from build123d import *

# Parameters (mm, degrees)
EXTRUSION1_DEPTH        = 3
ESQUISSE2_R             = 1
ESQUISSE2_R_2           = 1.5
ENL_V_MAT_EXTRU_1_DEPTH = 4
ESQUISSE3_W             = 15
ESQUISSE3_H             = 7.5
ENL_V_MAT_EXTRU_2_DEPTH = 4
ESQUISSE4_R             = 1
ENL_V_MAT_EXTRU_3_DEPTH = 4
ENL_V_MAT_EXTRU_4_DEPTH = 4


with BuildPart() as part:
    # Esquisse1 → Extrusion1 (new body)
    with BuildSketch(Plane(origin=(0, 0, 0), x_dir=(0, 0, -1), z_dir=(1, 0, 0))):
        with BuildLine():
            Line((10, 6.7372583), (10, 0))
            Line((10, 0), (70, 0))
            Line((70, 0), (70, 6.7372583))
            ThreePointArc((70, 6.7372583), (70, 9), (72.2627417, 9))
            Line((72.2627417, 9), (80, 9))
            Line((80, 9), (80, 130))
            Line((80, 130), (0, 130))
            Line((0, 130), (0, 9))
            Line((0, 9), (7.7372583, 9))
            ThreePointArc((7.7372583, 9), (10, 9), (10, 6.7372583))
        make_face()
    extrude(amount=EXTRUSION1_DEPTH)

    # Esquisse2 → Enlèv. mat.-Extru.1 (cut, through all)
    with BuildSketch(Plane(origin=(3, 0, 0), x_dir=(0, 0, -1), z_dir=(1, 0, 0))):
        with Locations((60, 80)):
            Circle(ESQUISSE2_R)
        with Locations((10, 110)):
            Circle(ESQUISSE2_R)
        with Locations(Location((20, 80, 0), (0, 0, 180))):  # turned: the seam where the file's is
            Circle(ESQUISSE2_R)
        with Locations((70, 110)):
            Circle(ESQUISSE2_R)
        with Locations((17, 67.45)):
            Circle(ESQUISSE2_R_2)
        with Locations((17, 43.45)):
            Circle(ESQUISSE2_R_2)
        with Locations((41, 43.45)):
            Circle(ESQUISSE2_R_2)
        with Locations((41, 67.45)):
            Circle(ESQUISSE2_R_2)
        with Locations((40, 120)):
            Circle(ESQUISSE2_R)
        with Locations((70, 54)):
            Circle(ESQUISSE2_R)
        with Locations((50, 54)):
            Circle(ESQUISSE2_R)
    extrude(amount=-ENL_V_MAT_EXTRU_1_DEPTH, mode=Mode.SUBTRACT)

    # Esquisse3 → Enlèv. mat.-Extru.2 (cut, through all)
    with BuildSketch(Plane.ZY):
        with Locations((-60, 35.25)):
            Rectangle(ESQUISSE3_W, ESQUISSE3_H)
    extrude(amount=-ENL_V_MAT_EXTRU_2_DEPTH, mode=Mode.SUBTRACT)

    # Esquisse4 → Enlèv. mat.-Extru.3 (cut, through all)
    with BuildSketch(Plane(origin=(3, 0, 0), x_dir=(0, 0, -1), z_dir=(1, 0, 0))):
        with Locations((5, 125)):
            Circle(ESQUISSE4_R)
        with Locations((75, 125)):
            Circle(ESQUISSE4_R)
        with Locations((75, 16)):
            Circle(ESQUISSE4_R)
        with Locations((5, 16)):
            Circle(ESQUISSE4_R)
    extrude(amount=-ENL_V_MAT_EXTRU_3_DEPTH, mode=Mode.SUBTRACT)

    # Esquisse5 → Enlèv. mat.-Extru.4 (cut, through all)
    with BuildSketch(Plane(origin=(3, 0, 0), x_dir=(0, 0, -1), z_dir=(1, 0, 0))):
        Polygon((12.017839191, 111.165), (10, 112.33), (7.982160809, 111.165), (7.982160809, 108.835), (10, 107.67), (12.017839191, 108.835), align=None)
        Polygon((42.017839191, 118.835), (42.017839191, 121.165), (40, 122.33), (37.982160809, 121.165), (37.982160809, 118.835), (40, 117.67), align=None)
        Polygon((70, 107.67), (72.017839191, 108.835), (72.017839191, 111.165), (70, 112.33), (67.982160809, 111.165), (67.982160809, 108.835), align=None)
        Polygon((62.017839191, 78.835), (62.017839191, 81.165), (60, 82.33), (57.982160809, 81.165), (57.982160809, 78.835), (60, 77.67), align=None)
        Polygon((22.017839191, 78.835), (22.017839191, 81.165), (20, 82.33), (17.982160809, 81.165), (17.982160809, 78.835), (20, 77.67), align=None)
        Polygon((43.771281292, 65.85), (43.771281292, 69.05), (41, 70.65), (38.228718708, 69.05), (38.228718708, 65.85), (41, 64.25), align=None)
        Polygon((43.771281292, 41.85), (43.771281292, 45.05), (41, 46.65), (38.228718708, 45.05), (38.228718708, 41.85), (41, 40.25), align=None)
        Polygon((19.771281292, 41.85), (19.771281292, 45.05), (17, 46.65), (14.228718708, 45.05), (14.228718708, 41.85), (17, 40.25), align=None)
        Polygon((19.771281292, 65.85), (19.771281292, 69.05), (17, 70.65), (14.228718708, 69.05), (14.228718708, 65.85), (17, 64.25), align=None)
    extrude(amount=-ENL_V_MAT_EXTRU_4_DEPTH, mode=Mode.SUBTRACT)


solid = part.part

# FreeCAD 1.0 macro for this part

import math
import FreeCAD as App
import Part
import Sketcher
Q = App.Units.Quantity


def add_polygon(sketch, points):
    """Adds a closed chain of lines whose ends are joined by coincident constraints."""
    first, n = sketch.GeometryCount, len(points)
    for a, b in zip(points, points[1:] + points[:1]):
        sketch.addGeometry(Part.LineSegment(App.Vector(*a, 0), App.Vector(*b, 0)), False)
    for i in range(n):
        sketch.addConstraint(Sketcher.Constraint("Coincident", first + i, 2, first + (i + 1) % n, 1))

doc = App.newDocument("Part")
body = doc.addObject("PartDesign::Body", "Body")

sketch1 = body.newObject("Sketcher::SketchObject", "Sketch")
sketch1.AttachmentSupport = (doc.getObject("YZ_Plane"), [""])
sketch1.MapMode = "FlatFace"
sketch1.addGeometry([
    Part.LineSegment(App.Vector(6.737258, -10, 0), App.Vector(0, -10, 0)),
    Part.LineSegment(App.Vector(0, -10, 0), App.Vector(0, -70, 0)),
    Part.LineSegment(App.Vector(0, -70, 0), App.Vector(6.737258, -70, 0)),
    Part.ArcOfCircle(Part.Circle(App.Vector(7.868629, -71.131371, 0), App.Vector(0, 0, 1), 1.6), math.radians(-45), math.radians(135)),
    Part.LineSegment(App.Vector(9, -72.262742, 0), App.Vector(9, -80, 0)),
    Part.LineSegment(App.Vector(9, -80, 0), App.Vector(130, -80, 0)),
    Part.LineSegment(App.Vector(130, -80, 0), App.Vector(130, 0, 0)),
    Part.LineSegment(App.Vector(130, 0, 0), App.Vector(9, 0, 0)),
    Part.LineSegment(App.Vector(9, 0, 0), App.Vector(9, -7.737258, 0)),
    Part.ArcOfCircle(Part.Circle(App.Vector(7.868629, -8.868629, 0), App.Vector(0, 0, 1), 1.6), math.radians(-135), math.radians(45)),
], False)
sketch1.addConstraint([
    Sketcher.Constraint("Coincident", 0, 2, 1, 1),
    Sketcher.Constraint("Coincident", 1, 2, 2, 1),
    Sketcher.Constraint("Coincident", 2, 2, 3, 2),
    Sketcher.Constraint("Coincident", 3, 1, 4, 1),
    Sketcher.Constraint("Coincident", 4, 2, 5, 1),
    Sketcher.Constraint("Coincident", 5, 2, 6, 1),
    Sketcher.Constraint("Coincident", 6, 2, 7, 1),
    Sketcher.Constraint("Coincident", 7, 2, 8, 1),
    Sketcher.Constraint("Coincident", 8, 2, 9, 2),
    Sketcher.Constraint("Coincident", 9, 1, 0, 1),
    Sketcher.Constraint("Horizontal", 0),
    Sketcher.Constraint("Vertical", 1),
    Sketcher.Constraint("Horizontal", 2),
    Sketcher.Constraint("Vertical", 4),
    Sketcher.Constraint("Horizontal", 5),
    Sketcher.Constraint("Vertical", 6),
    Sketcher.Constraint("Horizontal", 7),
    Sketcher.Constraint("Vertical", 8),
    Sketcher.Constraint("Equal", 3, 9),
    Sketcher.Constraint("PointOnObject", 0, 2, -2),
    Sketcher.Constraint("PointOnObject", 6, 2, -1),
    Sketcher.Constraint("Vertical", 3, 3, 9, 3),
    Sketcher.Constraint("Vertical", 4, 2, 7, 2),
    Sketcher.Constraint("Vertical", 2, 2, 9, 1),
    Sketcher.Constraint("Equal", 4, 8),
    Sketcher.Constraint("Radius", 3, Q("1.6 mm")),
    Sketcher.Constraint("DistanceX", 5, 1, 5, 2, Q("121 mm")),
    Sketcher.Constraint("DistanceY", 1, 2, 1, 1, Q("60 mm")),
    Sketcher.Constraint("DistanceY", 6, 1, 6, 2, Q("80 mm")),
    Sketcher.Constraint("DistanceX", -1, 1, 3, 1, Q("9 mm")),
    Sketcher.Constraint("DistanceX", 0, 2, 0, 1, Q("6.737258 mm")),
    Sketcher.Constraint("DistanceX", -1, 1, 3, 3, Q("7.868629 mm")),
])
pad1 = body.newObject("PartDesign::Pad", "Pad")
pad1.Profile = sketch1
pad1.Length = 3

sketch2 = body.newObject("Sketcher::SketchObject", "Sketch001")
sketch2.AttachmentSupport = (doc.getObject("YZ_Plane"), [""])
sketch2.MapMode = "FlatFace"
sketch2.AttachmentOffset = App.Placement(App.Vector(0, 0, 3), App.Rotation())
sketch2.addGeometry([
    Part.Circle(App.Vector(80, -60, 0), App.Vector(0, 0, 1), 1),
    Part.Circle(App.Vector(110, -10, 0), App.Vector(0, 0, 1), 1),
    Part.Circle(App.Vector(80, -20, 0), App.Vector(0, 0, 1), 1),
    Part.Circle(App.Vector(110, -70, 0), App.Vector(0, 0, 1), 1),
    Part.Circle(App.Vector(67.45, -17, 0), App.Vector(0, 0, 1), 1.5),
    Part.Circle(App.Vector(43.45, -17, 0), App.Vector(0, 0, 1), 1.5),
    Part.Circle(App.Vector(43.45, -41, 0), App.Vector(0, 0, 1), 1.5),
    Part.Circle(App.Vector(67.45, -41, 0), App.Vector(0, 0, 1), 1.5),
    Part.Circle(App.Vector(120, -40, 0), App.Vector(0, 0, 1), 1),
    Part.Circle(App.Vector(54, -70, 0), App.Vector(0, 0, 1), 1),
    Part.Circle(App.Vector(54, -50, 0), App.Vector(0, 0, 1), 1),
], False)
sketch2.addConstraint([
    Sketcher.Constraint("Equal", 0, 1),
    Sketcher.Constraint("Equal", 1, 2),
    Sketcher.Constraint("Equal", 2, 3),
    Sketcher.Constraint("Equal", 4, 5),
    Sketcher.Constraint("Equal", 5, 6),
    Sketcher.Constraint("Equal", 6, 7),
    Sketcher.Constraint("Equal", 3, 8),
    Sketcher.Constraint("Equal", 8, 9),
    Sketcher.Constraint("Equal", 9, 10),
    Sketcher.Constraint("Horizontal", 4, 3, 5, 3),
    Sketcher.Constraint("Horizontal", 6, 3, 7, 3),
    Sketcher.Constraint("Horizontal", 3, 3, 9, 3),
    Sketcher.Constraint("Vertical", 0, 3, 2, 3),
    Sketcher.Constraint("Vertical", 1, 3, 3, 3),
    Sketcher.Constraint("Vertical", 5, 3, 6, 3),
    Sketcher.Constraint("Vertical", 4, 3, 7, 3),
    Sketcher.Constraint("Vertical", 9, 3, 10, 3),
    Sketcher.Constraint("Diameter", 0, Q("2 mm")),
    Sketcher.Constraint("Diameter", 4, Q("3 mm")),
    Sketcher.Constraint("DistanceX", -1, 1, 0, 3, Q("80 mm")),
    Sketcher.Constraint("DistanceY", 0, 3, -1, 1, Q("60 mm")),
    Sketcher.Constraint("DistanceX", -1, 1, 1, 3, Q("110 mm")),
    Sketcher.Constraint("DistanceY", 1, 3, -1, 1, Q("10 mm")),
    Sketcher.Constraint("DistanceY", 2, 3, -1, 1, Q("20 mm")),
    Sketcher.Constraint("DistanceY", 3, 3, -1, 1, Q("70 mm")),
    Sketcher.Constraint("DistanceY", 4, 3, -1, 1, Q("17 mm")),
    Sketcher.Constraint("DistanceY", 6, 3, -1, 1, Q("41 mm")),
    Sketcher.Constraint("DistanceX", -1, 1, 8, 3, Q("120 mm")),
    Sketcher.Constraint("DistanceY", 8, 3, -1, 1, Q("40 mm")),
    Sketcher.Constraint("DistanceX", -1, 1, 9, 3, Q("54 mm")),
    Sketcher.Constraint("DistanceY", 10, 3, -1, 1, Q("50 mm")),
    Sketcher.Constraint("DistanceX", 5, 3, 4, 3, Q("24 mm")),
    Sketcher.Constraint("DistanceX", -1, 1, 4, 3, Q("67.45 mm")),
])
pocket1 = body.newObject("PartDesign::Pocket", "Pocket")
pocket1.Profile = sketch2
pocket1.Type = "ThroughAll"

sketch3 = body.newObject("Sketcher::SketchObject", "Sketch002")
sketch3.AttachmentSupport = (doc.getObject("YZ_Plane"), [""])
sketch3.MapMode = "FlatFace"
add_polygon(sketch3, [(39, -67.5), (31.5, -67.5), (31.5, -52.5), (39, -52.5)])
sketch3.addConstraint([
    Sketcher.Constraint("Horizontal", 0),
    Sketcher.Constraint("Vertical", 1),
    Sketcher.Constraint("Horizontal", 2),
    Sketcher.Constraint("Vertical", 3),
    Sketcher.Constraint("DistanceY", 1, 1, 1, 2, Q("15 mm")),
    Sketcher.Constraint("DistanceX", 0, 2, 0, 1, Q("7.5 mm")),
    Sketcher.Constraint("DistanceX", -1, 1, 2, 2, Q("39 mm")),
    Sketcher.Constraint("DistanceY", 0, 2, -1, 1, Q("67.5 mm")),
])
pocket2 = body.newObject("PartDesign::Pocket", "Pocket001")
pocket2.Profile = sketch3
pocket2.Type = "ThroughAll"
pocket2.Reversed = True

sketch4 = body.newObject("Sketcher::SketchObject", "Sketch003")
sketch4.AttachmentSupport = (doc.getObject("YZ_Plane"), [""])
sketch4.MapMode = "FlatFace"
sketch4.AttachmentOffset = App.Placement(App.Vector(0, 0, 3), App.Rotation())
sketch4.addGeometry([
    Part.Circle(App.Vector(125, -5, 0), App.Vector(0, 0, 1), 1),
    Part.Circle(App.Vector(125, -75, 0), App.Vector(0, 0, 1), 1),
    Part.Circle(App.Vector(16, -75, 0), App.Vector(0, 0, 1), 1),
    Part.Circle(App.Vector(16, -5, 0), App.Vector(0, 0, 1), 1),
], False)
sketch4.addConstraint([
    Sketcher.Constraint("Equal", 0, 1),
    Sketcher.Constraint("Equal", 1, 2),
    Sketcher.Constraint("Equal", 2, 3),
    Sketcher.Constraint("Horizontal", 1, 3, 2, 3),
    Sketcher.Constraint("Horizontal", 0, 3, 3, 3),
    Sketcher.Constraint("Vertical", 0, 3, 1, 3),
    Sketcher.Constraint("Vertical", 2, 3, 3, 3),
    Sketcher.Constraint("Diameter", 0, Q("2 mm")),
    Sketcher.Constraint("DistanceX", -1, 1, 0, 3, Q("125 mm")),
    Sketcher.Constraint("DistanceY", 0, 3, -1, 1, Q("5 mm")),
    Sketcher.Constraint("DistanceY", 1, 3, -1, 1, Q("75 mm")),
    Sketcher.Constraint("DistanceX", -1, 1, 2, 3, Q("16 mm")),
])
pocket3 = body.newObject("PartDesign::Pocket", "Pocket002")
pocket3.Profile = sketch4
pocket3.Type = "ThroughAll"

sketch5 = body.newObject("Sketcher::SketchObject", "Sketch004")
sketch5.AttachmentSupport = (doc.getObject("YZ_Plane"), [""])
sketch5.MapMode = "FlatFace"
sketch5.AttachmentOffset = App.Placement(App.Vector(0, 0, 3), App.Rotation())
add_polygon(sketch5, [(111.165, -12.017839), (112.33, -10), (111.165, -7.982161), (108.835, -7.982161), (107.67, -10), (108.835, -12.017839)])
add_polygon(sketch5, [(118.835, -42.017839), (121.165, -42.017839), (122.33, -40), (121.165, -37.982161), (118.835, -37.982161), (117.67, -40)])
add_polygon(sketch5, [(107.67, -70), (108.835, -72.017839), (111.165, -72.017839), (112.33, -70), (111.165, -67.982161), (108.835, -67.982161)])
add_polygon(sketch5, [(78.835, -62.017839), (81.165, -62.017839), (82.33, -60), (81.165, -57.982161), (78.835, -57.982161), (77.67, -60)])
add_polygon(sketch5, [(78.835, -22.017839), (81.165, -22.017839), (82.33, -20), (81.165, -17.982161), (78.835, -17.982161), (77.67, -20)])
add_polygon(sketch5, [(65.85, -43.771281), (69.05, -43.771281), (70.65, -41), (69.05, -38.228719), (65.85, -38.228719), (64.25, -41)])
add_polygon(sketch5, [(41.85, -43.771281), (45.05, -43.771281), (46.65, -41), (45.05, -38.228719), (41.85, -38.228719), (40.25, -41)])
add_polygon(sketch5, [(41.85, -19.771281), (45.05, -19.771281), (46.65, -17), (45.05, -14.228719), (41.85, -14.228719), (40.25, -17)])
add_polygon(sketch5, [(65.85, -19.771281), (69.05, -19.771281), (70.65, -17), (69.05, -14.228719), (65.85, -14.228719), (64.25, -17)])
sketch5.addConstraint([
    Sketcher.Constraint("Horizontal", 2),
    Sketcher.Constraint("Horizontal", 5),
    Sketcher.Constraint("Horizontal", 6),
    Sketcher.Constraint("Horizontal", 9),
    Sketcher.Constraint("Horizontal", 13),
    Sketcher.Constraint("Horizontal", 16),
    Sketcher.Constraint("Horizontal", 18),
    Sketcher.Constraint("Horizontal", 21),
    Sketcher.Constraint("Horizontal", 24),
    Sketcher.Constraint("Horizontal", 27),
    Sketcher.Constraint("Horizontal", 30),
    Sketcher.Constraint("Horizontal", 33),
    Sketcher.Constraint("Horizontal", 36),
    Sketcher.Constraint("Horizontal", 39),
    Sketcher.Constraint("Horizontal", 42),
    Sketcher.Constraint("Horizontal", 45),
    Sketcher.Constraint("Horizontal", 48),
    Sketcher.Constraint("Horizontal", 51),
    Sketcher.Constraint("Parallel", 0, 3),
    Sketcher.Constraint("Parallel", 1, 4),
    Sketcher.Constraint("Parallel", 3, 7),
    Sketcher.Constraint("Parallel", 4, 8),
    Sketcher.Constraint("Parallel", 7, 10),
    Sketcher.Constraint("Parallel", 8, 11),
    Sketcher.Constraint("Parallel", 11, 12),
    Sketcher.Constraint("Parallel", 10, 14),
    Sketcher.Constraint("Parallel", 12, 15),
    Sketcher.Constraint("Parallel", 14, 17),
    Sketcher.Constraint("Parallel", 17, 19),
    Sketcher.Constraint("Parallel", 15, 20),
    Sketcher.Constraint("Parallel", 19, 22),
    Sketcher.Constraint("Parallel", 20, 23),
    Sketcher.Constraint("Parallel", 22, 25),
    Sketcher.Constraint("Parallel", 23, 26),
    Sketcher.Constraint("Parallel", 25, 28),
    Sketcher.Constraint("Parallel", 26, 29),
    Sketcher.Constraint("Parallel", 28, 31),
    Sketcher.Constraint("Parallel", 29, 32),
    Sketcher.Constraint("Parallel", 31, 34),
    Sketcher.Constraint("Parallel", 32, 35),
    Sketcher.Constraint("Parallel", 34, 37),
    Sketcher.Constraint("Parallel", 35, 38),
    Sketcher.Constraint("Parallel", 37, 40),
    Sketcher.Constraint("Parallel", 38, 41),
    Sketcher.Constraint("Parallel", 40, 43),
    Sketcher.Constraint("Parallel", 41, 44),
    Sketcher.Constraint("Parallel", 43, 46),
    Sketcher.Constraint("Parallel", 44, 47),
    Sketcher.Constraint("Parallel", 46, 49),
    Sketcher.Constraint("Parallel", 47, 50),
    Sketcher.Constraint("Parallel", 49, 52),
    Sketcher.Constraint("Parallel", 50, 53),
    Sketcher.Constraint("Horizontal", 0, 2, 3, 2),
    Sketcher.Constraint("Horizontal", 7, 2, 10, 2),
    Sketcher.Constraint("Horizontal", 14, 2, 17, 2),
    Sketcher.Constraint("Horizontal", 19, 2, 22, 2),
    Sketcher.Constraint("Horizontal", 25, 2, 28, 2),
    Sketcher.Constraint("Horizontal", 31, 2, 34, 2),
    Sketcher.Constraint("Horizontal", 35, 2, 36, 2),
    Sketcher.Constraint("Horizontal", 34, 2, 37, 2),
    Sketcher.Constraint("Horizontal", 33, 2, 38, 2),
    Sketcher.Constraint("Horizontal", 37, 2, 40, 2),
    Sketcher.Constraint("Horizontal", 43, 2, 46, 2),
    Sketcher.Constraint("Horizontal", 47, 2, 48, 2),
    Sketcher.Constraint("Horizontal", 46, 2, 49, 2),
    Sketcher.Constraint("Horizontal", 45, 2, 50, 2),
    Sketcher.Constraint("Horizontal", 49, 2, 52, 2),
    Sketcher.Constraint("Vertical", 2, 2, 4, 2),
    Sketcher.Constraint("Vertical", 1, 2, 5, 2),
    Sketcher.Constraint("Vertical", 6, 2, 8, 2),
    Sketcher.Constraint("Vertical", 4, 2, 12, 2),
    Sketcher.Constraint("Vertical", 5, 2, 13, 2),
    Sketcher.Constraint("Vertical", 0, 2, 14, 2),
    Sketcher.Constraint("Vertical", 13, 2, 15, 2),
    Sketcher.Constraint("Vertical", 18, 2, 20, 2),
    Sketcher.Constraint("Vertical", 20, 2, 24, 2),
    Sketcher.Constraint("Vertical", 19, 2, 25, 2),
    Sketcher.Constraint("Vertical", 24, 2, 26, 2),
    Sketcher.Constraint("Vertical", 23, 2, 27, 2),
    Sketcher.Constraint("Vertical", 30, 2, 32, 2),
    Sketcher.Constraint("Vertical", 38, 2, 42, 2),
    Sketcher.Constraint("Vertical", 37, 2, 43, 2),
    Sketcher.Constraint("Vertical", 42, 2, 44, 2),
    Sketcher.Constraint("Vertical", 41, 2, 45, 2),
    Sketcher.Constraint("Vertical", 32, 2, 48, 2),
    Sketcher.Constraint("Vertical", 35, 2, 51, 2),
    Sketcher.Constraint("Equal", 5, 6),
    Sketcher.Constraint("Equal", 16, 18),
    Sketcher.Constraint("Equal", 33, 36),
    Sketcher.Constraint("Equal", 4, 7),
    Sketcher.Constraint("Equal", 17, 19),
    Sketcher.Constraint("Angle", 0, Q("60 deg")),
    Sketcher.Constraint("DistanceX", 30, 1, 30, 2, Q("3.2 mm")),
    Sketcher.Constraint("DistanceY", 0, 2, -1, 1, Q("10 mm")),
    Sketcher.Constraint("DistanceY", 7, 2, -1, 1, Q("40 mm")),
    Sketcher.Constraint("DistanceY", 14, 2, -1, 1, Q("70 mm")),
    Sketcher.Constraint("DistanceY", 19, 2, -1, 1, Q("60 mm")),
    Sketcher.Constraint("DistanceY", 25, 2, -1, 1, Q("20 mm")),
    Sketcher.Constraint("DistanceY", 31, 2, -1, 1, Q("41 mm")),
    Sketcher.Constraint("DistanceY", 43, 2, -1, 1, Q("17 mm")),
    Sketcher.Constraint("DistanceX", 5, 2, 6, 2, Q("10 mm")),
    Sketcher.Constraint("DistanceX", 18, 2, 15, 2, Q("30 mm")),
    Sketcher.Constraint("DistanceX", 36, 2, 30, 2, Q("24 mm")),
    Sketcher.Constraint("Distance", 31, Q("3.2 mm")),
    Sketcher.Constraint("DistanceX", 2, 2, 2, 1, Q("2.33 mm")),
    Sketcher.Constraint("Distance", 0, Q("2.33 mm")),
    Sketcher.Constraint("DistanceX", -1, 1, 0, 2, Q("112.33 mm")),
    Sketcher.Constraint("DistanceX", -1, 1, 30, 2, Q("69.05 mm")),
])
pocket4 = body.newObject("PartDesign::Pocket", "Pocket003")
pocket4.Profile = sketch5
pocket4.Type = "ThroughAll"

doc.recompute()
